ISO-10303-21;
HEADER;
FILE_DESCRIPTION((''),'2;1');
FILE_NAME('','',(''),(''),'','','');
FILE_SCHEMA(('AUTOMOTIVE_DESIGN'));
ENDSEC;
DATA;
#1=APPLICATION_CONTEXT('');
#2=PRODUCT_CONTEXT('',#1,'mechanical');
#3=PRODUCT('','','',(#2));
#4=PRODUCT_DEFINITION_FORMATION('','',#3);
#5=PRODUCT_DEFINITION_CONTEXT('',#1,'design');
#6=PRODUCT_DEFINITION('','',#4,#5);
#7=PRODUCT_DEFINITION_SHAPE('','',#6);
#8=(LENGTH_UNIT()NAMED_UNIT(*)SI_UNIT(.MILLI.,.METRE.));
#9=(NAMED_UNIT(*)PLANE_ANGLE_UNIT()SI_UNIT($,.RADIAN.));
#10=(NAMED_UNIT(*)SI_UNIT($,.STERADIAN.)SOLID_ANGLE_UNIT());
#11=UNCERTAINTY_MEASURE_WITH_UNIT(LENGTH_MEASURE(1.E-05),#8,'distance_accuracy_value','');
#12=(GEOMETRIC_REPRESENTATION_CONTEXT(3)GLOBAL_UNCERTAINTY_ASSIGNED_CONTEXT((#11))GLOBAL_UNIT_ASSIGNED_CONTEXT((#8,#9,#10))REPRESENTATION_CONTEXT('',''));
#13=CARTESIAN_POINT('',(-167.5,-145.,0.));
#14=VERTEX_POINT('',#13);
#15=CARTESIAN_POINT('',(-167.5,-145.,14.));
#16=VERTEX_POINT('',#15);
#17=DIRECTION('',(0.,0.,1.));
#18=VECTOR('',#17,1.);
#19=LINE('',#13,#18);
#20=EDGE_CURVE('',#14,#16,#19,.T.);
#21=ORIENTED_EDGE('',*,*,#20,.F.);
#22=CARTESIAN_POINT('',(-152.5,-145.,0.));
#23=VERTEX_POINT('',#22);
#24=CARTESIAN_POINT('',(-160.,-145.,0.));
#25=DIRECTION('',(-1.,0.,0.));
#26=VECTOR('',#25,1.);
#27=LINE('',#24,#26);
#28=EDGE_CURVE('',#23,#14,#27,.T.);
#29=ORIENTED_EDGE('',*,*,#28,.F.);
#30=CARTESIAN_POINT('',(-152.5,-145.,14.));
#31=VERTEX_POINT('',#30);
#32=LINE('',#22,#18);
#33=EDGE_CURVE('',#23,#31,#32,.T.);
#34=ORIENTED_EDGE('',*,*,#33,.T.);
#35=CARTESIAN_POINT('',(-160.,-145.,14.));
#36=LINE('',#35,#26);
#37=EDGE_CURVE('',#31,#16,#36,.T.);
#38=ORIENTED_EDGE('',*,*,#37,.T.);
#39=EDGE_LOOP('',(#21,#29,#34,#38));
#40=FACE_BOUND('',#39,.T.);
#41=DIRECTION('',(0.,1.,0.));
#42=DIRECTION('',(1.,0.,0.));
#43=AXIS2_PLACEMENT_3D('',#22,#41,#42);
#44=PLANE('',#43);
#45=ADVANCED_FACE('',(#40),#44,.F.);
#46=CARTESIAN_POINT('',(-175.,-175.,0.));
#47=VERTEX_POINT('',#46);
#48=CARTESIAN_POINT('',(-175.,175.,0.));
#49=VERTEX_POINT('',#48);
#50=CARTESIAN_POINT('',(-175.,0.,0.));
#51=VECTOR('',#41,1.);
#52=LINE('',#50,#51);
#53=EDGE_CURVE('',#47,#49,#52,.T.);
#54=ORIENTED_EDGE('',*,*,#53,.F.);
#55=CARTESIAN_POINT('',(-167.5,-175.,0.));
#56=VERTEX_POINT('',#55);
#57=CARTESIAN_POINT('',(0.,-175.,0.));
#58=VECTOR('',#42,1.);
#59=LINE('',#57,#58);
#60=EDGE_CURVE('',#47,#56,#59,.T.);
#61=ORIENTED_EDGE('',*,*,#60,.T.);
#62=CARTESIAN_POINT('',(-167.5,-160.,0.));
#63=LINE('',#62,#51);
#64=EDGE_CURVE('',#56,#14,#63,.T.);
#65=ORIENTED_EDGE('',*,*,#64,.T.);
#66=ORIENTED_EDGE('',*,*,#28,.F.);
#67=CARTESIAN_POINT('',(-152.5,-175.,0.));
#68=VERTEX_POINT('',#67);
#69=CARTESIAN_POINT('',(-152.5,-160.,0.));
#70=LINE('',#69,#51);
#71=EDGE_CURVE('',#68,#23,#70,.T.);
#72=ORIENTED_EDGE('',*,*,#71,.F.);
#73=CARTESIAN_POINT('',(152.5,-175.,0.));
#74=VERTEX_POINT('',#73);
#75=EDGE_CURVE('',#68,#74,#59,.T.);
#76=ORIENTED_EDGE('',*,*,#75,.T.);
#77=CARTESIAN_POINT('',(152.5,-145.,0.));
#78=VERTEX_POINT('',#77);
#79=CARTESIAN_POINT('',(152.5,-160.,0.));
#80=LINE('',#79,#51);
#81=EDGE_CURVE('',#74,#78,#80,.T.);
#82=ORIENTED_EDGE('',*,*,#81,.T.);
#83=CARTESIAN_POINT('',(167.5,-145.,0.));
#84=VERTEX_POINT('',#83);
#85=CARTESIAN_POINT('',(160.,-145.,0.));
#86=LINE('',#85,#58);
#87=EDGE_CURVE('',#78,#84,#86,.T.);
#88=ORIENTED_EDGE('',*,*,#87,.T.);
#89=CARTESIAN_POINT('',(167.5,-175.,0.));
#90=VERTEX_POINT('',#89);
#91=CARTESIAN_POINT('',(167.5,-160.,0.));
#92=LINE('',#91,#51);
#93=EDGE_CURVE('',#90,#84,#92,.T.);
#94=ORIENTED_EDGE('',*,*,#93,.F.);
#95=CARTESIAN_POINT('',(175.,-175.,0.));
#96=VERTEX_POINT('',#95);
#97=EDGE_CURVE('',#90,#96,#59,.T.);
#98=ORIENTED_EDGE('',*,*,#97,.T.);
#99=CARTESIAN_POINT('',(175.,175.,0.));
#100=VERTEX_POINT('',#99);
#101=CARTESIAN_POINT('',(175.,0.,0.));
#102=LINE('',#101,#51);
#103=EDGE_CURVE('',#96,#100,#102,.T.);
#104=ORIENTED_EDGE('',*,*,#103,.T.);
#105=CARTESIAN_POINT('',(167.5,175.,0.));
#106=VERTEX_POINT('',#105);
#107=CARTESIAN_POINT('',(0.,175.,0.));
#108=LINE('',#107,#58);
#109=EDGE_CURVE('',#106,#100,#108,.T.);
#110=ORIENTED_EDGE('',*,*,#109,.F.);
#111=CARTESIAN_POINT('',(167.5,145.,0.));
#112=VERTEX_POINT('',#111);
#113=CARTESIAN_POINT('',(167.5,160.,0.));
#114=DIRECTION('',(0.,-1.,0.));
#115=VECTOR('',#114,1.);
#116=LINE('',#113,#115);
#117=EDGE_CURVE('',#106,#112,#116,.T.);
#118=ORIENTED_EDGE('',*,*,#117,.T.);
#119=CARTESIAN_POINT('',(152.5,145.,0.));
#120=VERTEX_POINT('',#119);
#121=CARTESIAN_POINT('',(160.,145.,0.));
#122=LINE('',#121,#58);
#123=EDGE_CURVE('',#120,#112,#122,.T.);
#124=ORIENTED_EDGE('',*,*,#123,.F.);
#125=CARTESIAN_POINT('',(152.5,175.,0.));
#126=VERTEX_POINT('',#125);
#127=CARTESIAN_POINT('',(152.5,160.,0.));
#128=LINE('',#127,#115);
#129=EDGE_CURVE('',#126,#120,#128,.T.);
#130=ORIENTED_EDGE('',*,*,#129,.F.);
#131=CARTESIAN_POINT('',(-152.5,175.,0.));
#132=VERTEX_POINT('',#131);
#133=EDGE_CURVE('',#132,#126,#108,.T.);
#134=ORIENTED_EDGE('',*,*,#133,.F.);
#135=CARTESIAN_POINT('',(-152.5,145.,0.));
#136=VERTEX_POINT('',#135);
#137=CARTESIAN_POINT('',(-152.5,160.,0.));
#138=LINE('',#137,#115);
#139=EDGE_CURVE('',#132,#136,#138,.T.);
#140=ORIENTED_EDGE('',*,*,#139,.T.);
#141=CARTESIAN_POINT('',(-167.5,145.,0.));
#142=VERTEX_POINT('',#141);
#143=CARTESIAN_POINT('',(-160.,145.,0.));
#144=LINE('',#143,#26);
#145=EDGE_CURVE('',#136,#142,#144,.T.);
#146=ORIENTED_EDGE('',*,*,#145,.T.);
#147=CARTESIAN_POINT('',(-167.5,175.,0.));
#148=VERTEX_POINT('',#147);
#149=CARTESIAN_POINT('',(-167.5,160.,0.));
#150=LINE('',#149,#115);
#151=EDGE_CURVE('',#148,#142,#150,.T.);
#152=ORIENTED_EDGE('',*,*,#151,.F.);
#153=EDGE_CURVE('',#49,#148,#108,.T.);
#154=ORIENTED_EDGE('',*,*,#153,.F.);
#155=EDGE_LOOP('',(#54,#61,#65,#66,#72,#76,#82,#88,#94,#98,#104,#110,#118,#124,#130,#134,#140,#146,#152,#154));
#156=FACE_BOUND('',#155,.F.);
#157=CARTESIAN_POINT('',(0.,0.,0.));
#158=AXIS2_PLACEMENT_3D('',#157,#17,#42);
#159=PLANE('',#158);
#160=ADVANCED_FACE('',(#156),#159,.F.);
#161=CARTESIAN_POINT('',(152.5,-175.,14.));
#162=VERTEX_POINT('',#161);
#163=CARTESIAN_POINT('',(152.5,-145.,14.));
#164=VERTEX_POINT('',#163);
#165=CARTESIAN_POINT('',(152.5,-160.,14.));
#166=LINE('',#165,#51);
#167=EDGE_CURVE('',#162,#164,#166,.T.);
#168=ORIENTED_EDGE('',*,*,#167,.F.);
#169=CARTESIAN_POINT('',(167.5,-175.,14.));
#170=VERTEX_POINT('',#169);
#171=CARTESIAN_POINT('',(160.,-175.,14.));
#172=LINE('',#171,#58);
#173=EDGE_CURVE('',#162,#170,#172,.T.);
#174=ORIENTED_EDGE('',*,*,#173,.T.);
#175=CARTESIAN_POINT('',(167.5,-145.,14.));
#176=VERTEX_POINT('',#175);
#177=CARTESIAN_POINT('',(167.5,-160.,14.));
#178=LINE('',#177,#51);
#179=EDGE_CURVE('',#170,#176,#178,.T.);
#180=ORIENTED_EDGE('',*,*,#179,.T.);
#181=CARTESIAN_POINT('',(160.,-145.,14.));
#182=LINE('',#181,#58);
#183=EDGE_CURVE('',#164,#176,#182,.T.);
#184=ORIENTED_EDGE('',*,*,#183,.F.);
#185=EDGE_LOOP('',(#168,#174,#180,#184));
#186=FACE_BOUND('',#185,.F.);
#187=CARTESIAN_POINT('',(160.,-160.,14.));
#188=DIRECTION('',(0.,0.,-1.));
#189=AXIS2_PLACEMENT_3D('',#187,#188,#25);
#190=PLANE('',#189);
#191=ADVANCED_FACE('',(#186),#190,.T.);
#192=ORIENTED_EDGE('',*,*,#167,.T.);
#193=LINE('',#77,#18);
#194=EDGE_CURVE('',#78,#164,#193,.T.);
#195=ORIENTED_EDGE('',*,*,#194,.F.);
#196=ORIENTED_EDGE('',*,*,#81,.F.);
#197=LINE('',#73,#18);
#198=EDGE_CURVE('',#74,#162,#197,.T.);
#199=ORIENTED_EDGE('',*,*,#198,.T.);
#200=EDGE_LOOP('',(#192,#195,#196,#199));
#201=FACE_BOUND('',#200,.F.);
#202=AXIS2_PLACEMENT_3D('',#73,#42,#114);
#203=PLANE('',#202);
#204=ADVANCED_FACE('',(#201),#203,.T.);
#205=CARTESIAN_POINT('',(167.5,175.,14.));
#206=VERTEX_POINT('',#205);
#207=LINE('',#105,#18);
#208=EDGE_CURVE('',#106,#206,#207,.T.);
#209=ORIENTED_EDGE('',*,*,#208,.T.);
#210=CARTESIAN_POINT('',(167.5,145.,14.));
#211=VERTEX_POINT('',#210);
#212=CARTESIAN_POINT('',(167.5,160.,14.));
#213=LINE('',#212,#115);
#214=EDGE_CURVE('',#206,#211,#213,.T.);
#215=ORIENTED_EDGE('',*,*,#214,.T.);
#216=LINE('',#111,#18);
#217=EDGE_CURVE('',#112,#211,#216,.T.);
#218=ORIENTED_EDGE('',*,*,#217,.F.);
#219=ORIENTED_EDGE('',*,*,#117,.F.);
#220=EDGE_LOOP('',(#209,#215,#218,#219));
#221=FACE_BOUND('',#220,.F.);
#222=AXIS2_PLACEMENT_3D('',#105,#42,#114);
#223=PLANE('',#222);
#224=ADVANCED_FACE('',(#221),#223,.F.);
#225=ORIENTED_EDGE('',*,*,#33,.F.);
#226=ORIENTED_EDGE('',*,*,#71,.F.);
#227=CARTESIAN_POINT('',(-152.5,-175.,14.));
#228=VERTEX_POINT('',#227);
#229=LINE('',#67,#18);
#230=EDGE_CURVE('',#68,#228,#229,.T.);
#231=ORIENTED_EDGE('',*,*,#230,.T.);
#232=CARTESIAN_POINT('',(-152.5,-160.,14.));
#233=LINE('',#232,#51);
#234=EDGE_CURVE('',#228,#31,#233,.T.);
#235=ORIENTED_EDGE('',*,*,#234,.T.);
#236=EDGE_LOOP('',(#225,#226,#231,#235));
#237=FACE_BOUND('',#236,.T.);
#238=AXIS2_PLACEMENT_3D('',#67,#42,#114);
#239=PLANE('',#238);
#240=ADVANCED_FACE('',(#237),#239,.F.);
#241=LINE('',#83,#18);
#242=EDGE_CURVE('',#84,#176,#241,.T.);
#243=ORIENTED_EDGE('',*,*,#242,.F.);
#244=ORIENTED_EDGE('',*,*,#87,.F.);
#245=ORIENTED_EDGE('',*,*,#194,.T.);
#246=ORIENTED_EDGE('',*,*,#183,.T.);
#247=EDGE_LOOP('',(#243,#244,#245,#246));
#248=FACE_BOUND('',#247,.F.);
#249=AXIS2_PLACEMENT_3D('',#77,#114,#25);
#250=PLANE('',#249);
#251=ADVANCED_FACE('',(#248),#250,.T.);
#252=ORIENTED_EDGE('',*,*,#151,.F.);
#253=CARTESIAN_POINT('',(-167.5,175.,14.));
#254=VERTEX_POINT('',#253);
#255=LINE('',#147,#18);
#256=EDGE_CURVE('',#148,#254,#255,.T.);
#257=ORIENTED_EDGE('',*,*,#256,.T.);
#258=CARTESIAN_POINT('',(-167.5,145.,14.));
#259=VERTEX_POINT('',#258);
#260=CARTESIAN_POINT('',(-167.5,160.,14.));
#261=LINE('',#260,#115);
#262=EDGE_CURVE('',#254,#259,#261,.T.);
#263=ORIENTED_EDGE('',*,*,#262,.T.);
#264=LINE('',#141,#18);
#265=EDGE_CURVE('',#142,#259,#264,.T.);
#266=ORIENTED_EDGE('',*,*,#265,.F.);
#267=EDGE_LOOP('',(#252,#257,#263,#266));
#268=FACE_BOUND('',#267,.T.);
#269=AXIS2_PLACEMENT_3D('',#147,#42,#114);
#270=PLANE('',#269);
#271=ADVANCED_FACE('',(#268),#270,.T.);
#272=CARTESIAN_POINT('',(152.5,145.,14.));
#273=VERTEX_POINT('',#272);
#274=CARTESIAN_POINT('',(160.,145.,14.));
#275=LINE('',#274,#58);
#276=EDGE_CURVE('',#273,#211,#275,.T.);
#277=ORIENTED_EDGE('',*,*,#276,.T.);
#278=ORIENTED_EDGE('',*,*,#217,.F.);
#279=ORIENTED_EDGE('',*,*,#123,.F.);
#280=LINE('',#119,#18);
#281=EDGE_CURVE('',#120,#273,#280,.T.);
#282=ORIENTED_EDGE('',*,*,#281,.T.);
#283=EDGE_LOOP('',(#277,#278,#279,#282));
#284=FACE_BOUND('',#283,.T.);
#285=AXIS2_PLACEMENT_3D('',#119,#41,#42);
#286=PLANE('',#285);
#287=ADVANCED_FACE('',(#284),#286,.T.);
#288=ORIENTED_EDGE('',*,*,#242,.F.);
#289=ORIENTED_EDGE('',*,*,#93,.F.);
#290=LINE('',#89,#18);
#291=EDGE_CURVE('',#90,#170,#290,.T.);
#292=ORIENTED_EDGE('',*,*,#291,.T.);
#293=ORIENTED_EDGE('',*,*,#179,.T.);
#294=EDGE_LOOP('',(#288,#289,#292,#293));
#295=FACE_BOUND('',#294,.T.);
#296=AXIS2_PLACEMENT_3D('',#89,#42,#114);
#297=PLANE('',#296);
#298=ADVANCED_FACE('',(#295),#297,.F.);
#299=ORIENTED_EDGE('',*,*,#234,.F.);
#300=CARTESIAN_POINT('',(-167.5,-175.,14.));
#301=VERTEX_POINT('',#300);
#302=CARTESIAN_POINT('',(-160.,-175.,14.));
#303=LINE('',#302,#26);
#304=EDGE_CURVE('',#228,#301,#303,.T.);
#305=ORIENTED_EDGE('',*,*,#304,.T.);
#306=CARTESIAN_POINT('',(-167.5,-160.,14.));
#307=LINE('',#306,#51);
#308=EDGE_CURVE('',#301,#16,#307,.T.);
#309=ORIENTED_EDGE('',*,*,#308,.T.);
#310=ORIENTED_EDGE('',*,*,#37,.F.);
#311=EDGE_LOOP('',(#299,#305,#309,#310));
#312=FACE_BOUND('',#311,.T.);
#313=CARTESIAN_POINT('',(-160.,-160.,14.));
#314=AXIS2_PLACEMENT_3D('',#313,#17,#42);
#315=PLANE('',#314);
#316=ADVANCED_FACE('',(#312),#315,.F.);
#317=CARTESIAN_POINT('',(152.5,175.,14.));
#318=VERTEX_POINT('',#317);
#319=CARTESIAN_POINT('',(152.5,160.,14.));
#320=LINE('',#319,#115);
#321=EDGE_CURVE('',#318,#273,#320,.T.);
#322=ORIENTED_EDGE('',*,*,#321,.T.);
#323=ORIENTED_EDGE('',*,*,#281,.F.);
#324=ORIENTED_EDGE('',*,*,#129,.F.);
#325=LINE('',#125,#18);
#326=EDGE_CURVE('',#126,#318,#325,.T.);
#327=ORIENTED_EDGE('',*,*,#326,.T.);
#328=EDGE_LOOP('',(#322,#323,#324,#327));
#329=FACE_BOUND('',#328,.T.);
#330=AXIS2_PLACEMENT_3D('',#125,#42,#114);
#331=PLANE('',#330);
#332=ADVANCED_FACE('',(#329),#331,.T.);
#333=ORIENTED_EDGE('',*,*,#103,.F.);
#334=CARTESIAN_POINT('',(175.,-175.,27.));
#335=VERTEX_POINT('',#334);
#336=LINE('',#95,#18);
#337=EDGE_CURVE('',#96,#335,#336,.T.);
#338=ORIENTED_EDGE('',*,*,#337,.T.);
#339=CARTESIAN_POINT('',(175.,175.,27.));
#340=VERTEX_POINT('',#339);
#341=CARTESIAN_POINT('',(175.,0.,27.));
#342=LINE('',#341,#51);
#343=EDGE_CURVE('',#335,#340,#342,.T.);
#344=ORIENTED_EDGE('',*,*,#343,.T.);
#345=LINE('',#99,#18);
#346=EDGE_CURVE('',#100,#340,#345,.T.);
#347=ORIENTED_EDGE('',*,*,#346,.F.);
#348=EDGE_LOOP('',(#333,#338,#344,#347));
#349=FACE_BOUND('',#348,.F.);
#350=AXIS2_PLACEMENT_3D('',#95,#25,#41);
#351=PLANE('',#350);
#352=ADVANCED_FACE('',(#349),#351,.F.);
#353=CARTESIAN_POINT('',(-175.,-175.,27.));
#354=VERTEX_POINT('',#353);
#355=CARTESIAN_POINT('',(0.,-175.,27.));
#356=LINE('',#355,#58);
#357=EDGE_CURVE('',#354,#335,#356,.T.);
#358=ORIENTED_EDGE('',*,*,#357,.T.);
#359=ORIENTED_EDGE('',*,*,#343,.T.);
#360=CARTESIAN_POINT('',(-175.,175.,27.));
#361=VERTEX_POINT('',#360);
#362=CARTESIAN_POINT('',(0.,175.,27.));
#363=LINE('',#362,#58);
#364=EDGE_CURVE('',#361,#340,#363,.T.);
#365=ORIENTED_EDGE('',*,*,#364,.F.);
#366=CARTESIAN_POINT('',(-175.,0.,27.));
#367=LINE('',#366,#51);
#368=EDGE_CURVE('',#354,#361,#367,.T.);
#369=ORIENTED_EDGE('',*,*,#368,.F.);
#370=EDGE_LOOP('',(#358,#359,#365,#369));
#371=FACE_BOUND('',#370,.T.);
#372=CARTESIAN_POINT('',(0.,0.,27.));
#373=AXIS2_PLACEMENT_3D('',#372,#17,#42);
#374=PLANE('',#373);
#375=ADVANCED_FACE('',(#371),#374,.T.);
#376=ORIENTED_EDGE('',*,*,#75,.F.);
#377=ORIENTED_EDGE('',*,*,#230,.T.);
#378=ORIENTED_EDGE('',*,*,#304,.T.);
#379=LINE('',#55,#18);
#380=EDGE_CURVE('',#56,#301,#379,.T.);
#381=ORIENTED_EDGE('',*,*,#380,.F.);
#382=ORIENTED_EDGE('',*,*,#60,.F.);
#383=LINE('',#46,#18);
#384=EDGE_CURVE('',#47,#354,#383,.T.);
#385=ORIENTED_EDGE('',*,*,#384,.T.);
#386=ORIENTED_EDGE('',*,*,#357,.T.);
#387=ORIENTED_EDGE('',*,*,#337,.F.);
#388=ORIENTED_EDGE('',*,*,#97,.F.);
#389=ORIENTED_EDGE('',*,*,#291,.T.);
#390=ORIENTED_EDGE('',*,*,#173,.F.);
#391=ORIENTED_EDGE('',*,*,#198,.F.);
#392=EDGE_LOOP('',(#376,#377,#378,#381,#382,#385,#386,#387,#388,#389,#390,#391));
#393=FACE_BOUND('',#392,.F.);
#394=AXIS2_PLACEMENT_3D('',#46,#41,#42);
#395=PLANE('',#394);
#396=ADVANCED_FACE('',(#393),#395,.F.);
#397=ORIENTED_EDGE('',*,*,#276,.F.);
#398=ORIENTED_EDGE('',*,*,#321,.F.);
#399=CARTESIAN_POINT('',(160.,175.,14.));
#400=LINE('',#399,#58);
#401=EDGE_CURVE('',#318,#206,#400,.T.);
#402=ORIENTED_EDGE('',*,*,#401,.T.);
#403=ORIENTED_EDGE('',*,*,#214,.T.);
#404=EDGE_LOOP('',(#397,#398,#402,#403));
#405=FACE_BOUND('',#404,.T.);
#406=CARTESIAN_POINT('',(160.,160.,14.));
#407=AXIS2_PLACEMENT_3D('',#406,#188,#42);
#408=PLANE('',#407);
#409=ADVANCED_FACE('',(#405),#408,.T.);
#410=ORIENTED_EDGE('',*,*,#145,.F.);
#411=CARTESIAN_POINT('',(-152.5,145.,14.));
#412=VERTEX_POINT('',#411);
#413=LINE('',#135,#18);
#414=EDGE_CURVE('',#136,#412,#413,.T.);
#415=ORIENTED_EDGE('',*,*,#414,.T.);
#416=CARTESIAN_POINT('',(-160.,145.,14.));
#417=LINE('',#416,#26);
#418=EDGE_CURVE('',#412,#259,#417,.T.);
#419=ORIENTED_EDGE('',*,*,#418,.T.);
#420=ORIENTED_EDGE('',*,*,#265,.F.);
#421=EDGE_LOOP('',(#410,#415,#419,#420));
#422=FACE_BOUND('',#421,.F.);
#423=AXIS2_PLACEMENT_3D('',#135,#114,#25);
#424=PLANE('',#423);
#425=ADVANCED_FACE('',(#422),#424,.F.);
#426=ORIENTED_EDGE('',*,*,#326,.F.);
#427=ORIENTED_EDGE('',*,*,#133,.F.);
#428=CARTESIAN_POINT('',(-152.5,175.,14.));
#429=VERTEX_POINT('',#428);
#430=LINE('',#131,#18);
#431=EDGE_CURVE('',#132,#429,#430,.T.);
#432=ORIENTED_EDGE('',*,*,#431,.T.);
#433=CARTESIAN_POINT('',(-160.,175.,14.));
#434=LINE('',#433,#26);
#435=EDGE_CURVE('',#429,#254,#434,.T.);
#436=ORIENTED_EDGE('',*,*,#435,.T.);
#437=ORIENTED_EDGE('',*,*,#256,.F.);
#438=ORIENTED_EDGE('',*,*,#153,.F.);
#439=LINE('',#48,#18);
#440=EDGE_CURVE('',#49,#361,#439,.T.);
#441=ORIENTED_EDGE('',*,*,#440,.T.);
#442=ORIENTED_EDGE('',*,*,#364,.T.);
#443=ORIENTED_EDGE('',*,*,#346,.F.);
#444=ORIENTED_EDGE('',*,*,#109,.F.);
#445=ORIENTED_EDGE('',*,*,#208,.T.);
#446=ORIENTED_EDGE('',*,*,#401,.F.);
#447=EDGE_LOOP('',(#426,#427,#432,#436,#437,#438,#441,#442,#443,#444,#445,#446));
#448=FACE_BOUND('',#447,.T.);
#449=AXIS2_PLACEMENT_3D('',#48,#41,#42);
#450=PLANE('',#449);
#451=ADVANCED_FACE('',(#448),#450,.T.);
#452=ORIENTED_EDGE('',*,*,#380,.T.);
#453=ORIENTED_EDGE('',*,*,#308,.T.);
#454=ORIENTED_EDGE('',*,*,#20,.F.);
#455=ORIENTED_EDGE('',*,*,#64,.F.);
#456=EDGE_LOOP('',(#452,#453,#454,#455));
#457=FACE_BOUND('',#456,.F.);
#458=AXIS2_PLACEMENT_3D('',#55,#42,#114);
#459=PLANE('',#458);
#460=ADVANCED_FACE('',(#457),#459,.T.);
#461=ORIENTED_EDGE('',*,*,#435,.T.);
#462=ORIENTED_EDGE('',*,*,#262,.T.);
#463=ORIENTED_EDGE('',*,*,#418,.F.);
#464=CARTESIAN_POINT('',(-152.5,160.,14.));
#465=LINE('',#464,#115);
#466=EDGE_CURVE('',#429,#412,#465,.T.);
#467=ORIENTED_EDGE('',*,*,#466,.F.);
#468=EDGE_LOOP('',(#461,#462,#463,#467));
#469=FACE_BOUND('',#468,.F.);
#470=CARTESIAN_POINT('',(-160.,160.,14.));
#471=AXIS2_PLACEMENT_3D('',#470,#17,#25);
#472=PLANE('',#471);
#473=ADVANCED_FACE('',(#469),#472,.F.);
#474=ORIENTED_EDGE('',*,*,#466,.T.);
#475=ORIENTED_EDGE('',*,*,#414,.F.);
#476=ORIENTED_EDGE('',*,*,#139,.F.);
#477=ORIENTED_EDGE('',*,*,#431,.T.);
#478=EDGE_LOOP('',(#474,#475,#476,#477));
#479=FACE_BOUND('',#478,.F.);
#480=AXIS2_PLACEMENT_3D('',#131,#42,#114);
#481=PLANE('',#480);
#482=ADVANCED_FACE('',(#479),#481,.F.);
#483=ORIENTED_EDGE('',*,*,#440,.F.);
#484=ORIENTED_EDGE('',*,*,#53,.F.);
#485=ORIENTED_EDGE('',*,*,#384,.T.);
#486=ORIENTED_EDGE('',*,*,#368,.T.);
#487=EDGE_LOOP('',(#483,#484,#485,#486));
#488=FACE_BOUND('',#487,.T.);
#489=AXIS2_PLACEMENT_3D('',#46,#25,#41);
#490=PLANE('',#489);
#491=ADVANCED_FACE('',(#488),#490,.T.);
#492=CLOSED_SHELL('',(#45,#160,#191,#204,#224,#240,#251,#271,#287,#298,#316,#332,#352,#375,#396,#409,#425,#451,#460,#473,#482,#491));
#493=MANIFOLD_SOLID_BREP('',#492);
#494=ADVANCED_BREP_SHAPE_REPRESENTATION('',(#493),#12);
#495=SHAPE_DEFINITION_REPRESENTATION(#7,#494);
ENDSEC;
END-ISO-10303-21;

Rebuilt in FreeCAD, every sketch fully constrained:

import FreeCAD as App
import Part
import Sketcher
from FreeCAD import Vector
Q = App.Units.Quantity


def add_polygon(sketch, points):
    """Adds a closed chain of lines whose ends are joined by coincident constraints."""
    first, n = sketch.GeometryCount, len(points)
    for a, b in zip(points, points[1:] + points[:1]):
        sketch.addGeometry(Part.LineSegment(App.Vector(*a, 0), App.Vector(*b, 0)), False)
    for i in range(n):
        sketch.addConstraint(Sketcher.Constraint("Coincident", first + i, 2, first + (i + 1) % n, 1))

doc = App.newDocument("Part")
params = doc.addObject("Spreadsheet::Sheet", "Params")
for row, (alias, value) in enumerate([
    ("sketch1_width", "350 mm"),
    ("pad1_length", "27 mm"),
    ("sketch2_width", "15 mm"),
    ("sketch2_height", "30 mm"),
    ("pocket1_length", "14 mm"),
    ("sketch3_width", "15 mm"),
    ("sketch3_height", "30 mm"),
    ("pocket2_length", "14 mm"),
], start=1):
    params.set(f"A{row}", alias)
    params.set(f"B{row}", "=" + value)
    params.setAlias(f"B{row}", alias)

body = doc.addObject("PartDesign::Body", "Body")

# Sketch on XY plane
sketch1 = body.newObject("Sketcher::SketchObject", "Sketch")
sketch1.AttachmentSupport = (doc.getObject("XY_Plane"), [""])
sketch1.MapMode = "FlatFace"
add_polygon(sketch1, [(-175, 175), (-175, -175), (175, -175), (175, 175)])  # lines 0-3
sketch1.addConstraint(Sketcher.Constraint("Vertical", 0))
sketch1.addConstraint(Sketcher.Constraint("Horizontal", 1))
sketch1.addConstraint(Sketcher.Constraint("Vertical", 2))
sketch1.addConstraint(Sketcher.Constraint("Horizontal", 3))
sketch1.addConstraint(Sketcher.Constraint("Symmetric", 0, 2, 2, 2, -1, 1))
sketch1.addConstraint(Sketcher.Constraint("Equal", 3, 0))
sketch1.addConstraint(Sketcher.Constraint("DistanceX", 1, 1, 1, 2, Q("350 mm")))
sketch1.setExpression("Constraints[10]", "Params.sketch1_width")
pad1 = body.newObject("PartDesign::Pad", "Pad")
pad1.Profile = sketch1
pad1.setExpression("Length", "Params.pad1_length")

# Sketch on XY plane
sketch2 = body.newObject("Sketcher::SketchObject", "Sketch001")
sketch2.AttachmentSupport = (doc.getObject("XY_Plane"), [""])
sketch2.MapMode = "FlatFace"
add_polygon(sketch2, [(152, 145), (152, 175), (168, 175), (168, 145)])  # lines 0-3
sketch2.addConstraint(Sketcher.Constraint("Vertical", 0))
sketch2.addConstraint(Sketcher.Constraint("Horizontal", 1))
sketch2.addConstraint(Sketcher.Constraint("Vertical", 2))
sketch2.addConstraint(Sketcher.Constraint("Horizontal", 3))
sketch2.addConstraint(Sketcher.Constraint("DistanceX", 1, 1, 1, 2, Q("15 mm")))
sketch2.addConstraint(Sketcher.Constraint("DistanceY", 0, 1, 0, 2, Q("30 mm")))
sketch2.addConstraint(Sketcher.Constraint("DistanceY", -1, 1, 0, 2, Q("175 mm")))
sketch2.addConstraint(Sketcher.Constraint("DistanceX", -1, 1, 0, 2, Q("152.5 mm")))
sketch2.setExpression("Constraints[8]", "Params.sketch2_width")
sketch2.setExpression("Constraints[9]", "Params.sketch2_height")
pocket1 = body.newObject("PartDesign::Pocket", "Pocket")
pocket1.Profile = sketch2
pocket1.setExpression("Length", "Params.pocket1_length")
pocket1.Reversed = True

# Sketch on XY plane
sketch3 = body.newObject("Sketcher::SketchObject", "Sketch002")
sketch3.AttachmentSupport = (doc.getObject("XY_Plane"), [""])
sketch3.MapMode = "FlatFace"
add_polygon(sketch3, [(-152, 145), (-152, 175), (-168, 175), (-168, 145)])  # lines 0-3
sketch3.addConstraint(Sketcher.Constraint("Vertical", 0))
sketch3.addConstraint(Sketcher.Constraint("Horizontal", 1))
sketch3.addConstraint(Sketcher.Constraint("Vertical", 2))
sketch3.addConstraint(Sketcher.Constraint("Horizontal", 3))
sketch3.addConstraint(Sketcher.Constraint("DistanceX", 1, 2, 1, 1, Q("15 mm")))
sketch3.addConstraint(Sketcher.Constraint("DistanceY", 0, 1, 0, 2, Q("30 mm")))
sketch3.addConstraint(Sketcher.Constraint("DistanceY", -1, 1, 0, 2, Q("175 mm")))
sketch3.addConstraint(Sketcher.Constraint("DistanceX", 0, 2, -1, 1, Q("152.5 mm")))
sketch3.setExpression("Constraints[8]", "Params.sketch3_width")
sketch3.setExpression("Constraints[9]", "Params.sketch3_height")
pocket2 = body.newObject("PartDesign::Pocket", "Pocket001")
pocket2.Profile = sketch3
pocket2.setExpression("Length", "Params.pocket2_length")
pocket2.Reversed = True
doc.recompute()

mirrored = body.newObject("PartDesign::Mirrored", "Mirrored")
mirrored.Originals = [pocket1, pocket2]
mirrored.MirrorPlane = (doc.getObject("XZ_Plane"), [""])
body.Tip = mirrored

doc.recompute()
